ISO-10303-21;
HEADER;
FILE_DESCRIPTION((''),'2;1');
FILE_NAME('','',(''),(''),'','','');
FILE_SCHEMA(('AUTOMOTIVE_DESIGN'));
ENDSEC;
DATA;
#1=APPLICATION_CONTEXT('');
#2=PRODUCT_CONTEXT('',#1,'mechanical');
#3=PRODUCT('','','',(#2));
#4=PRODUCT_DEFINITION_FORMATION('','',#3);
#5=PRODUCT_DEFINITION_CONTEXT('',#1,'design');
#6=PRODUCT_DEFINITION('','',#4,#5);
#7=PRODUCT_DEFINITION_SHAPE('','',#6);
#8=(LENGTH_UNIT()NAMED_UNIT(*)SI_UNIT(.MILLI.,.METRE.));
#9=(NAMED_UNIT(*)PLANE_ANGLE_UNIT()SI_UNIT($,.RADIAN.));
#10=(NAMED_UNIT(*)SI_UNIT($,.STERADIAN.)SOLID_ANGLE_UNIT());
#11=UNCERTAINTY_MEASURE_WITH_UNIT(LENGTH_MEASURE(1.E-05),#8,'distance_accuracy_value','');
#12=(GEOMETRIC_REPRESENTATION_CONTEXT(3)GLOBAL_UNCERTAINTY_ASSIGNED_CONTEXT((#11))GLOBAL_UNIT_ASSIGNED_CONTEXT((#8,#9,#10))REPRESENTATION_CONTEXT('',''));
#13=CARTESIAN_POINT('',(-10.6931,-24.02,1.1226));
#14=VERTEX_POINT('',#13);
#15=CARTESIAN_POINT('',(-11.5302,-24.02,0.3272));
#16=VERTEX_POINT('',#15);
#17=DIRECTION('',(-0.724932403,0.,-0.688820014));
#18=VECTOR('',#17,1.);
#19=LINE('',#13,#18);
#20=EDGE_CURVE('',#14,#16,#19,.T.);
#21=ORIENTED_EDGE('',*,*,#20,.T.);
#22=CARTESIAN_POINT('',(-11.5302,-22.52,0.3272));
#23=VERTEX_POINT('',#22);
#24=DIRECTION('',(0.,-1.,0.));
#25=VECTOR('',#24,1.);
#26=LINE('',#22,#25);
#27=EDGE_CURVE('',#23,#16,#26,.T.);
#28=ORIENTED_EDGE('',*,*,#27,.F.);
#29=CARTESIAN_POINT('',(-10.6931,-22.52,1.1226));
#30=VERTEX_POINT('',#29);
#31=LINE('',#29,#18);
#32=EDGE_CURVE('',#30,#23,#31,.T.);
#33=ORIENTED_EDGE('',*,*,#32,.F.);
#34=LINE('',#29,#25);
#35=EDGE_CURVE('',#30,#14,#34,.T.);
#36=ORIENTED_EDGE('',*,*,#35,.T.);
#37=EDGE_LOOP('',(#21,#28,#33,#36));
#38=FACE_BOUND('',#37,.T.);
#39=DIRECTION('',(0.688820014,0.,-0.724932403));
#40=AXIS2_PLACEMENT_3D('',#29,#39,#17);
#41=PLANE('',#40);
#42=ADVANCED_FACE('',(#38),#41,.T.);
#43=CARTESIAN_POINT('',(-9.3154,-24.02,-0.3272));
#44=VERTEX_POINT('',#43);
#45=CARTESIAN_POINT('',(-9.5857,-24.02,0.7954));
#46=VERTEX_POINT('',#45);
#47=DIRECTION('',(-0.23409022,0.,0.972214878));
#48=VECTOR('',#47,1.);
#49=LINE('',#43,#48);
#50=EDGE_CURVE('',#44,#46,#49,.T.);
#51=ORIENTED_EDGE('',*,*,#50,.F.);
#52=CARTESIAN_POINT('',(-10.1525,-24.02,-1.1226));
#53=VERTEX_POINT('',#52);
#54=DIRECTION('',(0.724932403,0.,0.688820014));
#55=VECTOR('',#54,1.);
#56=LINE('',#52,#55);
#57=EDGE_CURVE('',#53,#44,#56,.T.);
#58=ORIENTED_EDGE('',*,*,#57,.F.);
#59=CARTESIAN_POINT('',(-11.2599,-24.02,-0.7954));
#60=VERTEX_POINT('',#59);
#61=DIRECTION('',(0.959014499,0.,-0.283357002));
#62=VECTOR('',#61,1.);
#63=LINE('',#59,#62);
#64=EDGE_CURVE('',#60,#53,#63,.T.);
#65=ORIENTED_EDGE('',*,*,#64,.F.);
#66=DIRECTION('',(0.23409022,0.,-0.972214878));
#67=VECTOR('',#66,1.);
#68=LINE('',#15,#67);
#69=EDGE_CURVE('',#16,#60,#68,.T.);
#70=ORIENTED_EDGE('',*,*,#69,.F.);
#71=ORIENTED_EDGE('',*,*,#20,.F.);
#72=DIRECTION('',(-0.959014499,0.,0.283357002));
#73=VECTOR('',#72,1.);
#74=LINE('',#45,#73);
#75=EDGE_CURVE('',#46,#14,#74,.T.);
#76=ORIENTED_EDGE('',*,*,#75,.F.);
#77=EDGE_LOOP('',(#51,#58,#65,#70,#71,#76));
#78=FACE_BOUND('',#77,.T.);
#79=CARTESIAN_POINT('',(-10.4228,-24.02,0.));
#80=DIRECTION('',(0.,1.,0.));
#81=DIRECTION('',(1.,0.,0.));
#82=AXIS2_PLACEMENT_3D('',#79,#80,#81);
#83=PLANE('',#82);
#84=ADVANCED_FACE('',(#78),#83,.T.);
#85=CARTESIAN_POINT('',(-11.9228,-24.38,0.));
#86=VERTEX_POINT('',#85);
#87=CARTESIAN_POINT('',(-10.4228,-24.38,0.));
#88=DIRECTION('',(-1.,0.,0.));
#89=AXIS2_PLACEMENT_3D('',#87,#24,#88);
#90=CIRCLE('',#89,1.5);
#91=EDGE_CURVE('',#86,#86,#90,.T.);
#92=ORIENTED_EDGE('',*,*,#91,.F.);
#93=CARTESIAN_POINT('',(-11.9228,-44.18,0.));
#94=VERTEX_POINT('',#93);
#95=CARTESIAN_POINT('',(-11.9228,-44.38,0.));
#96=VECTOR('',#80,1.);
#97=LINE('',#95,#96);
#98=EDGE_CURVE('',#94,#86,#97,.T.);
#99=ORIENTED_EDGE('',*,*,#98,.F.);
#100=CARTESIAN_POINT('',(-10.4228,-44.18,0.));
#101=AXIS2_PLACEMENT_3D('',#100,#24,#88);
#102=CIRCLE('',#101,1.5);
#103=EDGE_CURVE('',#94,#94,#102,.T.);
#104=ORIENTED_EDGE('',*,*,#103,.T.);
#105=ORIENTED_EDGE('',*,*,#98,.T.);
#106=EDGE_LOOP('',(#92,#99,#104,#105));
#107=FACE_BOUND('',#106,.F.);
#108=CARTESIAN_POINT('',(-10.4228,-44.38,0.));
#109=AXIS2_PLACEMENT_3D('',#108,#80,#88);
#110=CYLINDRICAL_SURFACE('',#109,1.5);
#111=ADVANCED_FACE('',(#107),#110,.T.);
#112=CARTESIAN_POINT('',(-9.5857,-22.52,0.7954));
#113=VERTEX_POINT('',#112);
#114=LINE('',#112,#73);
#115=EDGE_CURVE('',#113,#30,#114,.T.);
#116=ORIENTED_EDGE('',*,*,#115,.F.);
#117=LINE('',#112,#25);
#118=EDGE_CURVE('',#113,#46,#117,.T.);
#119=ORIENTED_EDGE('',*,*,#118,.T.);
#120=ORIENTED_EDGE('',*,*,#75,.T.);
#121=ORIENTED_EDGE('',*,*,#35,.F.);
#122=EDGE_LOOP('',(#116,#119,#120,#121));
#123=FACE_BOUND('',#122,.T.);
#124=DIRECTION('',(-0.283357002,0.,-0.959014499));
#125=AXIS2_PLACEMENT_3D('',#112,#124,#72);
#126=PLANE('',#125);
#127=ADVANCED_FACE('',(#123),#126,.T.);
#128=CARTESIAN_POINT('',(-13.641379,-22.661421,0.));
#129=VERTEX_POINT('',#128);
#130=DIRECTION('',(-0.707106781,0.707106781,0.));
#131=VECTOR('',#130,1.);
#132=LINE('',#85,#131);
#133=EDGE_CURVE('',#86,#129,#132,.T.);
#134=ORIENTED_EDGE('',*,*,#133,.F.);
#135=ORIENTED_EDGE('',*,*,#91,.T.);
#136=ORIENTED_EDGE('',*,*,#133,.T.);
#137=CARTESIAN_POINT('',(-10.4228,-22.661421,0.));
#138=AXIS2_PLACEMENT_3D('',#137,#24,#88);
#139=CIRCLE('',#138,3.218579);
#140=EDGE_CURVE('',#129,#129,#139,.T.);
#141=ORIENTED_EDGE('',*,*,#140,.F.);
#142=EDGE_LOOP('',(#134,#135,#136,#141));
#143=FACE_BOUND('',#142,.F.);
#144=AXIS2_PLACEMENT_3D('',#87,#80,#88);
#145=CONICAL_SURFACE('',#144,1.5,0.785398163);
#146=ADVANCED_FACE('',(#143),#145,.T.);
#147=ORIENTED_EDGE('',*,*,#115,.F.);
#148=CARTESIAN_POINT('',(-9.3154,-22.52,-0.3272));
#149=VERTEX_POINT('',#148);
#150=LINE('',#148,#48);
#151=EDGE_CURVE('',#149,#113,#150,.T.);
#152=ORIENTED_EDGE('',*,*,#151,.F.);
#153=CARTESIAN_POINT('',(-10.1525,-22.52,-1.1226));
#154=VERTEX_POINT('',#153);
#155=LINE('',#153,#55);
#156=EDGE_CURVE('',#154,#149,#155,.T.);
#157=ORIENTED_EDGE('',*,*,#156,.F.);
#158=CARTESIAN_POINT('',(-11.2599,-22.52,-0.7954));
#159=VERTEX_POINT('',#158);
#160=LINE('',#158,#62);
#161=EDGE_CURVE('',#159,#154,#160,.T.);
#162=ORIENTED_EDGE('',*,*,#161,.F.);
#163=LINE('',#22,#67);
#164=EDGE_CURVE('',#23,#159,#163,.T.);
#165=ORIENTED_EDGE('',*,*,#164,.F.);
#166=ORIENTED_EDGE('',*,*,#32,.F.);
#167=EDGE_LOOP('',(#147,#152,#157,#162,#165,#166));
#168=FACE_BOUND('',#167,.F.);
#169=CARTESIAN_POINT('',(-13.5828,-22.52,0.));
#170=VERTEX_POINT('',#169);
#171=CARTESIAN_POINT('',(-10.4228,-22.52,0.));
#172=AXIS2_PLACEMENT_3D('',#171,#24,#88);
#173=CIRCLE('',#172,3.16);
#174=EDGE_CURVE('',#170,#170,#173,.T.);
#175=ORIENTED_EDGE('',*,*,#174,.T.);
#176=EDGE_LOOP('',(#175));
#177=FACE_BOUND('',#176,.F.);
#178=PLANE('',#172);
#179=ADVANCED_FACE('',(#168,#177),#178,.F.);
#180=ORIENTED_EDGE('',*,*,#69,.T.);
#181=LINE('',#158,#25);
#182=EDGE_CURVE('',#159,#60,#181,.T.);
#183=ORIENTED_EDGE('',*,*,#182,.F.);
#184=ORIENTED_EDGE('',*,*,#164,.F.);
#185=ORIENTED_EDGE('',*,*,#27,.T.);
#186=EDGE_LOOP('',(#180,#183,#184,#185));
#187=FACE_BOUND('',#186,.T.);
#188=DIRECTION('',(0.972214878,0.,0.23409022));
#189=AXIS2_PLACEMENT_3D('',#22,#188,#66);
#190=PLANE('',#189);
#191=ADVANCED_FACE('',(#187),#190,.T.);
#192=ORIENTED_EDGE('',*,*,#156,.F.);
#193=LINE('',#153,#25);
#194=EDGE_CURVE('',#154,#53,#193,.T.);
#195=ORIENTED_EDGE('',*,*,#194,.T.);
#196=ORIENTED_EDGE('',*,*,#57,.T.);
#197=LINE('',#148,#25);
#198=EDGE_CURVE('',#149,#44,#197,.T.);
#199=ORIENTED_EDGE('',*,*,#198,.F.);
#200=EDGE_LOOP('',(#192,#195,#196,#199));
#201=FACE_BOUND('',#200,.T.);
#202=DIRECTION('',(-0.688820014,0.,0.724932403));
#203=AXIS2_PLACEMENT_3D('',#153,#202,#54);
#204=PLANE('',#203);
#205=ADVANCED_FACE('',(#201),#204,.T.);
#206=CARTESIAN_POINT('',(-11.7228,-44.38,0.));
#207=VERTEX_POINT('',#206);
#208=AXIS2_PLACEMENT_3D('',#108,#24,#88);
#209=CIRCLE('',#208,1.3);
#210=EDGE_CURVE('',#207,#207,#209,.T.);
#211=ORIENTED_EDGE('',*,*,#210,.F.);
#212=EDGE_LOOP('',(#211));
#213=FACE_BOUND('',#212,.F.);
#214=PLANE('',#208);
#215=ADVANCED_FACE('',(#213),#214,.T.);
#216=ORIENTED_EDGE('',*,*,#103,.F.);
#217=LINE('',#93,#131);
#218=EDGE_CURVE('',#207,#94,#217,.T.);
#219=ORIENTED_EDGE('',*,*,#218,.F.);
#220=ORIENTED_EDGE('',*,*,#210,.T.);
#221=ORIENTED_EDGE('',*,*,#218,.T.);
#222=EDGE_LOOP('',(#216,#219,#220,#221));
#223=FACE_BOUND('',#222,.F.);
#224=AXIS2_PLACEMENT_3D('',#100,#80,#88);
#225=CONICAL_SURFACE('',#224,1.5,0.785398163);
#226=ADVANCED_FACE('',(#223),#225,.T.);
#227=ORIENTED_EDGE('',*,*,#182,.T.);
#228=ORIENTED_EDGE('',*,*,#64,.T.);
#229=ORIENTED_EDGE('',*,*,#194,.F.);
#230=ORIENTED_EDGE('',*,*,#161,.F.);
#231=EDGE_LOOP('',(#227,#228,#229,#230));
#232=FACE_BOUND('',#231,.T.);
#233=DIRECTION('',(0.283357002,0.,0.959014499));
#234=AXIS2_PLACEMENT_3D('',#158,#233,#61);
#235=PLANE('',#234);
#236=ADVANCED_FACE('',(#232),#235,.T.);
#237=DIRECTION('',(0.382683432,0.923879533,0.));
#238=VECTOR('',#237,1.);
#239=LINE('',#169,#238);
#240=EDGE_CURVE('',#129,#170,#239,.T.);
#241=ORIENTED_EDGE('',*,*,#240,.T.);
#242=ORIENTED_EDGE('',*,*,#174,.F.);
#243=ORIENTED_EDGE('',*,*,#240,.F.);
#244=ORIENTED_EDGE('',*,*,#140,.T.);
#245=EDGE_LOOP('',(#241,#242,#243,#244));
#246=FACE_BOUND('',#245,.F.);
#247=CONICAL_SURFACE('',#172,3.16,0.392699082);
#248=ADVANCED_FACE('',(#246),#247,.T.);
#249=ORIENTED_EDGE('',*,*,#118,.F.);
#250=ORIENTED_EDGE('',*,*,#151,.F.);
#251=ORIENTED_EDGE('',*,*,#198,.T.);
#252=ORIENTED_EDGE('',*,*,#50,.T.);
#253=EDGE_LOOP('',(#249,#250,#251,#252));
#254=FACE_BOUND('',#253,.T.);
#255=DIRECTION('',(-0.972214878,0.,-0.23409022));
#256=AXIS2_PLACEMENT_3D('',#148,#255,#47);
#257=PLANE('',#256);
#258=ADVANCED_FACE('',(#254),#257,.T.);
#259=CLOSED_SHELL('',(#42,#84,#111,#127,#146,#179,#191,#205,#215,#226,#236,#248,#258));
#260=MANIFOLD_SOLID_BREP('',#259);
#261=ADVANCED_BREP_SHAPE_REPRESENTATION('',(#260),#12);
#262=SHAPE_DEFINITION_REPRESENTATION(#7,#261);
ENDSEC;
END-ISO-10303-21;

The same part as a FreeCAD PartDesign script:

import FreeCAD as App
import Part
import Sketcher
Q = App.Units.Quantity


def edges_at(feature, points):
    """Names of the edges that pass closest to the given points."""
    edges = feature.Shape.Edges
    near = lambda p: min(range(len(edges)), key=lambda i: edges[i].distToShape(Part.Vertex(*p))[0])
    return sorted({f"Edge{near(p) + 1}" for p in points})

doc = App.newDocument("Part")
body = doc.addObject("PartDesign::Body", "Body")

sketch1 = doc.addObject("Sketcher::SketchObject", "Sketch")
body.addObject(sketch1)
sketch1.AttachmentSupport = (doc.XY_Plane, [""])
sketch1.MapMode = "FlatFace"
sketch1.addGeometry([
    Part.LineSegment(App.Vector(-10.4, -22.5, 0), App.Vector(-13.8, -22.5, 0)),
    Part.LineSegment(App.Vector(-13.8, -22.5, 0), App.Vector(-11.9, -24.4, 0)),
    Part.LineSegment(App.Vector(-11.9, -24.4, 0), App.Vector(-11.9, -44.4, 0)),
    Part.LineSegment(App.Vector(-11.9, -44.4, 0), App.Vector(-10.4, -44.4, 0)),
    Part.LineSegment(App.Vector(-10.4, -44.4, 0), App.Vector(-10.4, -22.5, 0)),
], False)
sketch1.addGeometry(Part.LineSegment(App.Vector(-10.4, -22.5, 0), App.Vector(-10.4, -44.4, 0)), True)
sketch1.addConstraint([
    Sketcher.Constraint("Coincident", 0, 2, 1, 1),
    Sketcher.Constraint("Coincident", 1, 2, 2, 1),
    Sketcher.Constraint("Coincident", 2, 2, 3, 1),
    Sketcher.Constraint("Coincident", 3, 2, 4, 1),
    Sketcher.Constraint("Coincident", 4, 2, 0, 1),
    Sketcher.Constraint("Horizontal", 0),
    Sketcher.Constraint("Vertical", 2),
    Sketcher.Constraint("Horizontal", 3),
    Sketcher.Constraint("Vertical", 4),
    Sketcher.Constraint("Vertical", 5),
    Sketcher.Constraint("Coincident", 5, 1, 4, 2),
    Sketcher.Constraint("Horizontal", 2, 2, 5, 2),
    Sketcher.Constraint("DistanceY", 2, 2, 2, 1, 20.0),
    Sketcher.Constraint("DistanceX", 3, 1, 3, 2, 1.5),
    Sketcher.Constraint("DistanceX", 0, 2, 0, 1, 3.36),
    Sketcher.Constraint("DistanceY", 4, 1, 4, 2, 21.86),
    Sketcher.Constraint("DistanceY", 0, 2, -1, 1, 22.52),
    Sketcher.Constraint("DistanceX", 0, 2, -1, 1, 13.7828),
])
revolution = doc.addObject("PartDesign::Revolution", "Revolution")
body.addObject(revolution)
revolution.Profile = sketch1
revolution.ReferenceAxis = (sketch1, ["Axis0"])
revolution.Angle = 360
doc.recompute()

chamfer = doc.addObject("PartDesign::Chamfer", "Chamfer")
body.addObject(chamfer)
chamfer.Base = (revolution, edges_at(revolution, [(-8.923, -44.38, 0)]))
chamfer.Size = 0.2
doc.recompute()

chamfer2 = doc.addObject("PartDesign::Chamfer", "Chamfer001")
body.addObject(chamfer2)
chamfer2.Base = (chamfer, edges_at(chamfer, [(-7.063, -22.52, 0)]))
chamfer2.Size = 0.2

sketch2 = doc.addObject("Sketcher::SketchObject", "Sketch001")
body.addObject(sketch2)
sketch2.AttachmentSupport = (doc.XZ_Plane, [""])
sketch2.MapMode = "FlatFace"
sketch2.AttachmentOffset = App.Placement(App.Vector(0, 0, 22.52), App.Rotation())
sketch2.addGeometry([
    Part.LineSegment(App.Vector(-10.2, -1.1, 0), App.Vector(-11.3, -0.8, 0)),
    Part.LineSegment(App.Vector(-11.3, -0.8, 0), App.Vector(-11.5, 0.3, 0)),
    Part.LineSegment(App.Vector(-11.5, 0.3, 0), App.Vector(-10.7, 1.1, 0)),
    Part.LineSegment(App.Vector(-10.7, 1.1, 0), App.Vector(-9.6, 0.8, 0)),
    Part.LineSegment(App.Vector(-9.6, 0.8, 0), App.Vector(-9.3, -0.3, 0)),
    Part.LineSegment(App.Vector(-9.3, -0.3, 0), App.Vector(-10.2, -1.1, 0)),
], False)
sketch2.addConstraint([
    Sketcher.Constraint("Coincident", 0, 2, 1, 1),
    Sketcher.Constraint("Coincident", 1, 2, 2, 1),
    Sketcher.Constraint("Coincident", 2, 2, 3, 1),
    Sketcher.Constraint("Coincident", 3, 2, 4, 1),
    Sketcher.Constraint("Coincident", 4, 2, 5, 1),
    Sketcher.Constraint("Coincident", 5, 2, 0, 1),
    Sketcher.Constraint("Parallel", 0, 3),
    Sketcher.Constraint("Parallel", 1, 4),
    Sketcher.Constraint("Parallel", 2, 5),
    Sketcher.Constraint("Equal", 0, 1),
    Sketcher.Constraint("Equal", 1, 2),
    Sketcher.Constraint("Equal", 2, 3),
    Sketcher.Constraint("Angle", 0, Q("163.5393 deg")),
    Sketcher.Constraint("DistanceX", 0, 2, -1, 1, 11.26),
    Sketcher.Constraint("DistanceX", 2, 2, -1, 1, 10.693),
    Sketcher.Constraint("DistanceX", 1, 2, 2, 2, 0.837),
    Sketcher.Constraint("DistanceY", 0, 2, 2, 2, 1.918),
    Sketcher.Constraint("DistanceY", 0, 2, -1, 1, 0.7954),
])
pocket1 = doc.addObject("PartDesign::Pocket", "Pocket")
body.addObject(pocket1)
pocket1.Profile = sketch2
pocket1.Length = 1.5
pocket1.Reversed = True

doc.recompute()
